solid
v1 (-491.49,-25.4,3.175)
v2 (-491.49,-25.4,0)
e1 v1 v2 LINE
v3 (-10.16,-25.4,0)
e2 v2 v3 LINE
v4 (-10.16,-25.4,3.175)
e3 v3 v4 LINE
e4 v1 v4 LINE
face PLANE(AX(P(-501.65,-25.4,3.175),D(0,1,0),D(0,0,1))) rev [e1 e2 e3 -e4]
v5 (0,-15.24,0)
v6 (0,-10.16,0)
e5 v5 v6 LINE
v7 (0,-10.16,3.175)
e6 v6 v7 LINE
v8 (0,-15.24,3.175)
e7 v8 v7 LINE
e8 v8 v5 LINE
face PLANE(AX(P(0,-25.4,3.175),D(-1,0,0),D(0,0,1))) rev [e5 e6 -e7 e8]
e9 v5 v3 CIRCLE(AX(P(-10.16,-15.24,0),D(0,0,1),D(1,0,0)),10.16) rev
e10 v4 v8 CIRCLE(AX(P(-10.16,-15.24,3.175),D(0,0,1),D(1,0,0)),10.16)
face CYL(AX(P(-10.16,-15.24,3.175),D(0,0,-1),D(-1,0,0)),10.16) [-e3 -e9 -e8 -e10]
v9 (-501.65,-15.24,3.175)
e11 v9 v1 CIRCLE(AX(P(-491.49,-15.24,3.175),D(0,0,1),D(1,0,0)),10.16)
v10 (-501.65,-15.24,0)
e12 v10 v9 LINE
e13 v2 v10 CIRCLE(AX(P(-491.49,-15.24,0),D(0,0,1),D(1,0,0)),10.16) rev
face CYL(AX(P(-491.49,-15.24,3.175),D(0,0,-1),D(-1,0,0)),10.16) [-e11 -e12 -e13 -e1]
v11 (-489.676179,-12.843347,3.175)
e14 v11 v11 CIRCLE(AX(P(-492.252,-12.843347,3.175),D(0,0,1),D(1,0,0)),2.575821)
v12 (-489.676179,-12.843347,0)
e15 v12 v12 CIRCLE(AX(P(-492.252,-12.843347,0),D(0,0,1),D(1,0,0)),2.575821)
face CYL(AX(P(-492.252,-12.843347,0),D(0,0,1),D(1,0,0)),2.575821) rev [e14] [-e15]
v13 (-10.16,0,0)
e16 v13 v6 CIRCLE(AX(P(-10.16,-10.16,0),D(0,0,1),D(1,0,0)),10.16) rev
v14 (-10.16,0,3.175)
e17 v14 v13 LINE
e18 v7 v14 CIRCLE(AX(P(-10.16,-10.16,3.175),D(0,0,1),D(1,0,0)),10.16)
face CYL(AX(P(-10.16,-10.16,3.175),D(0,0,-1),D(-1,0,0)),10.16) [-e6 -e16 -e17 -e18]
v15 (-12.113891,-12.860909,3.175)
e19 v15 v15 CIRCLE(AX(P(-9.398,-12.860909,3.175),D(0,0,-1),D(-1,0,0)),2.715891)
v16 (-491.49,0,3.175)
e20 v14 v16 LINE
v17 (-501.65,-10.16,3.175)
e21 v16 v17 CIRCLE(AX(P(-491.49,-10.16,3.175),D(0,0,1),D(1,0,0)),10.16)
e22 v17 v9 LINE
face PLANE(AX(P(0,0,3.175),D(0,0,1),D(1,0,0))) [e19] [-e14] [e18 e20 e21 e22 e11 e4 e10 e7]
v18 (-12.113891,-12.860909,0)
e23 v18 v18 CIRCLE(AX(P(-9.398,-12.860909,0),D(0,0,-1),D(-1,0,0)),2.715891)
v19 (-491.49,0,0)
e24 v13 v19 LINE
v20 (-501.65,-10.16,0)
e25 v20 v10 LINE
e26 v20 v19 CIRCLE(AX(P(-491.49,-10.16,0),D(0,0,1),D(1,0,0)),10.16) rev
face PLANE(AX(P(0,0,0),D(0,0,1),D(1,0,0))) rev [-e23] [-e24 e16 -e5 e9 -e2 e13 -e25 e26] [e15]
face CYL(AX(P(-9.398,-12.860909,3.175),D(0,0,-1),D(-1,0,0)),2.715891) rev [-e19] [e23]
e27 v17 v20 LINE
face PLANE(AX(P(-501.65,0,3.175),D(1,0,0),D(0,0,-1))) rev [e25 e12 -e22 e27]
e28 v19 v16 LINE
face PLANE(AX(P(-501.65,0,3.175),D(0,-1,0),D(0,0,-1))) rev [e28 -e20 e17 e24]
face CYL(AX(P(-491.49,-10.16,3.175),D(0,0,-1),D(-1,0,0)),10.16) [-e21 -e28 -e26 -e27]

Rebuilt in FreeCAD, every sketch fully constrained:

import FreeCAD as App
import Part
import Sketcher
from FreeCAD import Vector
Q = App.Units.Quantity


def edges_at(feature, points):
    """Names of the edges that pass closest to the given points."""
    edges = feature.Shape.Edges
    near = lambda p: min(range(len(edges)), key=lambda i: edges[i].distToShape(Part.Vertex(*p))[0])
    return sorted({f"Edge{near(p) + 1}" for p in points})

doc = App.newDocument("Part")
body = doc.addObject("PartDesign::Body", "Body")

sketch1 = doc.addObject("Sketcher::SketchObject", "Sketch")
body.addObject(sketch1)
sketch1.AttachmentSupport = (doc.XY_Plane, [""])
sketch1.MapMode = "FlatFace"
sketch1.addGeometry(Part.LineSegment(Vector(-502, 0, 0), Vector(-502, -25, 0)), False)
sketch1.addGeometry(Part.LineSegment(Vector(-502, -25, 0), Vector(0, -25, 0)), False)
sketch1.addGeometry(Part.LineSegment(Vector(0, -25, 0), Vector(0, 0, 0)), False)
sketch1.addGeometry(Part.LineSegment(Vector(0, 0, 0), Vector(-502, 0, 0)), False)
sketch1.addConstraint(Sketcher.Constraint("Coincident", 0, 2, 1, 1))
sketch1.addConstraint(Sketcher.Constraint("Coincident", 1, 2, 2, 1))
sketch1.addConstraint(Sketcher.Constraint("Coincident", 2, 2, 3, 1))
sketch1.addConstraint(Sketcher.Constraint("Coincident", 3, 2, 0, 1))
sketch1.addConstraint(Sketcher.Constraint("Vertical", 0))
sketch1.addConstraint(Sketcher.Constraint("Horizontal", 1))
sketch1.addConstraint(Sketcher.Constraint("Vertical", 2))
sketch1.addConstraint(Sketcher.Constraint("Horizontal", 3))
sketch1.addConstraint(Sketcher.Constraint("Coincident", 2, 2, -1, 1))
sketch1.addConstraint(Sketcher.Constraint("DistanceY", 0, 2, 0, 1, Q("1 in")))
sketch1.addConstraint(Sketcher.Constraint("DistanceX", 1, 1, 1, 2, Q("19.75 in")))
pad1 = doc.addObject("PartDesign::Pad", "Pad")
body.addObject(pad1)
pad1.Profile = sketch1
pad1.Length = Q("0.125 in")
doc.recompute()

fillet = doc.addObject("PartDesign::Fillet", "Fillet")
body.addObject(fillet)
fillet.Base = (pad1, edges_at(pad1, [(0, 0, 1.587)]))
fillet.Radius = Q("0.4 in")
doc.recompute()

fillet2 = doc.addObject("PartDesign::Fillet", "Fillet001")
body.addObject(fillet2)
fillet2.Base = (fillet, edges_at(fillet, [(0, -25.4, 1.587)]))
fillet2.Radius = Q("0.4 in")
doc.recompute()

fillet3 = doc.addObject("PartDesign::Fillet", "Fillet002")
body.addObject(fillet3)
fillet3.Base = (fillet2, edges_at(fillet2, [(-501.65, -25.4, 1.587)]))
fillet3.Radius = Q("0.4 in")
doc.recompute()

fillet4 = doc.addObject("PartDesign::Fillet", "Fillet003")
body.addObject(fillet4)
fillet4.Base = (fillet3, edges_at(fillet3, [(-501.65, 0, 1.587)]))
fillet4.Radius = Q("0.4 in")

sketch2 = doc.addObject("Sketcher::SketchObject", "Sketch001")
body.addObject(sketch2)
sketch2.AttachmentSupport = (doc.XY_Plane, [""])
sketch2.MapMode = "FlatFace"
sketch2.AttachmentOffset = App.Placement(Vector(0, 0, 0.125 * 25.4), App.Rotation())
sketch2.addGeometry(Part.Circle(Vector(-492.3, -12.8, 0), Vector(0, 0, 1), 2.6), False)
sketch2.addConstraint(Sketcher.Constraint("DistanceX", 0, 3, -1, 1, Q("19.38 in")))
sketch2.addConstraint(Sketcher.Constraint("Diameter", 0, Q("5.151641 mm")))
sketch2.addConstraint(Sketcher.Constraint("DistanceY", 0, 3, -1, 1, Q("12.843347 mm")))
pocket1 = doc.addObject("PartDesign::Pocket", "Pocket")
body.addObject(pocket1)
pocket1.Profile = sketch2
pocket1.Type = "ThroughAll"

sketch3 = doc.addObject("Sketcher::SketchObject", "Sketch002")
body.addObject(sketch3)
sketch3.AttachmentSupport = (doc.XY_Plane, [""])
sketch3.MapMode = "FlatFace"
sketch3.addGeometry(Part.Circle(Vector(-9.4, -12.9, 0), Vector(0, 0, 1), 2.7), False)
sketch3.addConstraint(Sketcher.Constraint("DistanceX", 0, 3, -1, 1, Q("0.37 in")))
sketch3.addConstraint(Sketcher.Constraint("Diameter", 0, Q("5.431782 mm")))
sketch3.addConstraint(Sketcher.Constraint("DistanceY", 0, 3, -1, 1, Q("12.860909 mm")))
pocket2 = doc.addObject("PartDesign::Pocket", "Pocket001")
body.addObject(pocket2)
pocket2.Profile = sketch3
pocket2.Type = "ThroughAll"
pocket2.Reversed = True

doc.recompute()
